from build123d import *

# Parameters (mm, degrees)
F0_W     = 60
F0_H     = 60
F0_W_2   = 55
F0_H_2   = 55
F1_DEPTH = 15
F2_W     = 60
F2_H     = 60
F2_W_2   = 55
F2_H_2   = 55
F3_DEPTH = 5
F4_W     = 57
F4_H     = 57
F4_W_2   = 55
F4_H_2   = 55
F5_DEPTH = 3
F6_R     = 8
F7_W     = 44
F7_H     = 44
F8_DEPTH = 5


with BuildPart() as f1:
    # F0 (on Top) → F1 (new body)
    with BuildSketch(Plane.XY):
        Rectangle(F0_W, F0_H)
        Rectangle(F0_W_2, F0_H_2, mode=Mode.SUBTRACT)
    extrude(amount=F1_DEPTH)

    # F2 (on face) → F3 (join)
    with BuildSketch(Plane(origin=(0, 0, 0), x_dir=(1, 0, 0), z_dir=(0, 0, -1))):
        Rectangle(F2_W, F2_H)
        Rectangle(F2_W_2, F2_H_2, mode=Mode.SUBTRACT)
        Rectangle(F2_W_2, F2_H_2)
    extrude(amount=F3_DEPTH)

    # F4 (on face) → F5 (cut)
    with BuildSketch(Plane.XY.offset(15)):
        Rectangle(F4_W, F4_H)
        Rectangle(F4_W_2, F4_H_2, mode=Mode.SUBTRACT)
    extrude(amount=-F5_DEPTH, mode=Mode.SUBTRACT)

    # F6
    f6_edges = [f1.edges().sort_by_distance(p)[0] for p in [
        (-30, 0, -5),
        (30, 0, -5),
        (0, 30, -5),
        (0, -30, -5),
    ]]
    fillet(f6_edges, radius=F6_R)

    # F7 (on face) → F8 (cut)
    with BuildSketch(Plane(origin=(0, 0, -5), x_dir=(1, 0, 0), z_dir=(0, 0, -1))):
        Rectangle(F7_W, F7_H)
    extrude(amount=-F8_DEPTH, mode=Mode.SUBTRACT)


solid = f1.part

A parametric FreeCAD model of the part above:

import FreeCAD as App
import Part
import Sketcher
Q = App.Units.Quantity


def edges_at(feature, points):
    """Names of the edges that pass closest to the given points."""
    edges = feature.Shape.Edges
    near = lambda p: min(range(len(edges)), key=lambda i: edges[i].distToShape(Part.Vertex(*p))[0])
    return sorted({f"Edge{near(p) + 1}" for p in points})


def add_polygon(sketch, points):
    """Adds a closed chain of lines whose ends are joined by coincident constraints."""
    first, n = sketch.GeometryCount, len(points)
    for a, b in zip(points, points[1:] + points[:1]):
        sketch.addGeometry(Part.LineSegment(App.Vector(*a, 0), App.Vector(*b, 0)), False)
    for i in range(n):
        sketch.addConstraint(Sketcher.Constraint("Coincident", first + i, 2, first + (i + 1) % n, 1))

doc = App.newDocument("Part")
params = doc.addObject("Spreadsheet::Sheet", "Params")
for row, (alias, value) in enumerate([
    ("sketch1_width", "60 mm"),
    ("sketch1_width2", "55 mm"),
    ("pad1_length", "15 mm"),
    ("sketch2_width", "60 mm"),
    ("pad2_length", "5 mm"),
    ("sketch3_width", "57 mm"),
    ("sketch3_width2", "55 mm"),
    ("pocket1_length", "3 mm"),
    ("fillet_radius", "8 mm"),
    ("sketch4_width", "44 mm"),
    ("pocket2_length", "5 mm"),
], start=1):
    params.set(f"A{row}", alias)
    params.set(f"B{row}", "=" + value)
    params.setAlias(f"B{row}", alias)

body = doc.addObject("PartDesign::Body", "Body")

sketch1 = doc.addObject("Sketcher::SketchObject", "Sketch")
body.addObject(sketch1)
sketch1.AttachmentSupport = (doc.XY_Plane, [""])
sketch1.MapMode = "FlatFace"
add_polygon(sketch1, [(-30, 30), (-30, -30), (30, -30), (30, 30)])
add_polygon(sketch1, [(27.5, -27.5), (-27.5, -27.5), (-27.5, 27.5), (27.5, 27.5)])
sketch1.addConstraint(Sketcher.Constraint("Vertical", 0))
sketch1.addConstraint(Sketcher.Constraint("Horizontal", 1))
sketch1.addConstraint(Sketcher.Constraint("Vertical", 2))
sketch1.addConstraint(Sketcher.Constraint("Horizontal", 3))
sketch1.addConstraint(Sketcher.Constraint("Horizontal", 4))
sketch1.addConstraint(Sketcher.Constraint("Vertical", 5))
sketch1.addConstraint(Sketcher.Constraint("Horizontal", 6))
sketch1.addConstraint(Sketcher.Constraint("Vertical", 7))
sketch1.addConstraint(Sketcher.Constraint("Symmetric", 0, 2, 2, 2, -1, 1))
sketch1.addConstraint(Sketcher.Constraint("Symmetric", 4, 2, 6, 2, -1, 1))
sketch1.addConstraint(Sketcher.Constraint("Equal", 3, 0))
sketch1.addConstraint(Sketcher.Constraint("Equal", 6, 5))
sketch1.addConstraint(Sketcher.Constraint("DistanceX", 1, 1, 1, 2, Q("60 mm")))
sketch1.addConstraint(Sketcher.Constraint("DistanceX", 4, 2, 4, 1, Q("55 mm")))
sketch1.setExpression("Constraints[20]", "Params.sketch1_width")
sketch1.setExpression("Constraints[21]", "Params.sketch1_width2")
pad1 = doc.addObject("PartDesign::Pad", "Pad")
body.addObject(pad1)
pad1.Profile = sketch1
pad1.setExpression("Length", "Params.pad1_length")

sketch2 = doc.addObject("Sketcher::SketchObject", "Sketch001")
body.addObject(sketch2)
sketch2.AttachmentSupport = (doc.XY_Plane, [""])
sketch2.MapMode = "FlatFace"
add_polygon(sketch2, [(-30, -30), (-30, 30), (30, 30), (30, -30)])
sketch2.addConstraint(Sketcher.Constraint("Vertical", 0))
sketch2.addConstraint(Sketcher.Constraint("Horizontal", 1))
sketch2.addConstraint(Sketcher.Constraint("Vertical", 2))
sketch2.addConstraint(Sketcher.Constraint("Horizontal", 3))
sketch2.addConstraint(Sketcher.Constraint("Symmetric", 0, 2, 2, 2, -1, 1))
sketch2.addConstraint(Sketcher.Constraint("Equal", 3, 0))
sketch2.addConstraint(Sketcher.Constraint("DistanceX", 1, 1, 1, 2, Q("60 mm")))
sketch2.setExpression("Constraints[10]", "Params.sketch2_width")
pad2 = doc.addObject("PartDesign::Pad", "Pad001")
body.addObject(pad2)
pad2.Profile = sketch2
pad2.setExpression("Length", "Params.pad2_length")
pad2.Reversed = True

sketch3 = doc.addObject("Sketcher::SketchObject", "Sketch002")
body.addObject(sketch3)
sketch3.AttachmentSupport = (doc.XY_Plane, [""])
sketch3.MapMode = "FlatFace"
sketch3.AttachmentOffset = App.Placement(App.Vector(0, 0, 15), App.Rotation())
add_polygon(sketch3, [(-28.5, 28.5), (-28.5, -28.5), (28.5, -28.5), (28.5, 28.5)])
add_polygon(sketch3, [(27.5, -27.5), (-27.5, -27.5), (-27.5, 27.5), (27.5, 27.5)])
sketch3.addConstraint(Sketcher.Constraint("Vertical", 0))
sketch3.addConstraint(Sketcher.Constraint("Horizontal", 1))
sketch3.addConstraint(Sketcher.Constraint("Vertical", 2))
sketch3.addConstraint(Sketcher.Constraint("Horizontal", 3))
sketch3.addConstraint(Sketcher.Constraint("Horizontal", 4))
sketch3.addConstraint(Sketcher.Constraint("Vertical", 5))
sketch3.addConstraint(Sketcher.Constraint("Horizontal", 6))
sketch3.addConstraint(Sketcher.Constraint("Vertical", 7))
sketch3.addConstraint(Sketcher.Constraint("Symmetric", 0, 2, 2, 2, -1, 1))
sketch3.addConstraint(Sketcher.Constraint("Symmetric", 4, 2, 6, 2, -1, 1))
sketch3.addConstraint(Sketcher.Constraint("Equal", 3, 0))
sketch3.addConstraint(Sketcher.Constraint("Equal", 6, 5))
sketch3.addConstraint(Sketcher.Constraint("DistanceX", 1, 1, 1, 2, Q("57 mm")))
sketch3.addConstraint(Sketcher.Constraint("DistanceX", 4, 2, 4, 1, Q("55 mm")))
sketch3.setExpression("Constraints[20]", "Params.sketch3_width")
sketch3.setExpression("Constraints[21]", "Params.sketch3_width2")
pocket1 = doc.addObject("PartDesign::Pocket", "Pocket")
body.addObject(pocket1)
pocket1.Profile = sketch3
pocket1.setExpression("Length", "Params.pocket1_length")
doc.recompute()

fillet = doc.addObject("PartDesign::Fillet", "Fillet")
body.addObject(fillet)
fillet.Base = (pocket1, edges_at(pocket1, [
    (-30, 0, -5),
    (30, 0, -5),
    (0, 30, -5),
    (0, -30, -5),
]))
fillet.setExpression("Radius", "Params.fillet_radius")

sketch4 = doc.addObject("Sketcher::SketchObject", "Sketch003")
body.addObject(sketch4)
sketch4.AttachmentSupport = (doc.XY_Plane, [""])
sketch4.MapMode = "FlatFace"
sketch4.AttachmentOffset = App.Placement(App.Vector(0, 0, -5), App.Rotation())
add_polygon(sketch4, [(-22, -22), (-22, 22), (22, 22), (22, -22)])
sketch4.addConstraint(Sketcher.Constraint("Vertical", 0))
sketch4.addConstraint(Sketcher.Constraint("Horizontal", 1))
sketch4.addConstraint(Sketcher.Constraint("Vertical", 2))
sketch4.addConstraint(Sketcher.Constraint("Horizontal", 3))
sketch4.addConstraint(Sketcher.Constraint("Symmetric", 0, 2, 2, 2, -1, 1))
sketch4.addConstraint(Sketcher.Constraint("Equal", 3, 0))
sketch4.addConstraint(Sketcher.Constraint("DistanceX", 1, 1, 1, 2, Q("44 mm")))
sketch4.setExpression("Constraints[10]", "Params.sketch4_width")
pocket2 = doc.addObject("PartDesign::Pocket", "Pocket001")
body.addObject(pocket2)
pocket2.Profile = sketch4
pocket2.setExpression("Length", "Params.pocket2_length")
pocket2.Reversed = True

doc.recompute()
